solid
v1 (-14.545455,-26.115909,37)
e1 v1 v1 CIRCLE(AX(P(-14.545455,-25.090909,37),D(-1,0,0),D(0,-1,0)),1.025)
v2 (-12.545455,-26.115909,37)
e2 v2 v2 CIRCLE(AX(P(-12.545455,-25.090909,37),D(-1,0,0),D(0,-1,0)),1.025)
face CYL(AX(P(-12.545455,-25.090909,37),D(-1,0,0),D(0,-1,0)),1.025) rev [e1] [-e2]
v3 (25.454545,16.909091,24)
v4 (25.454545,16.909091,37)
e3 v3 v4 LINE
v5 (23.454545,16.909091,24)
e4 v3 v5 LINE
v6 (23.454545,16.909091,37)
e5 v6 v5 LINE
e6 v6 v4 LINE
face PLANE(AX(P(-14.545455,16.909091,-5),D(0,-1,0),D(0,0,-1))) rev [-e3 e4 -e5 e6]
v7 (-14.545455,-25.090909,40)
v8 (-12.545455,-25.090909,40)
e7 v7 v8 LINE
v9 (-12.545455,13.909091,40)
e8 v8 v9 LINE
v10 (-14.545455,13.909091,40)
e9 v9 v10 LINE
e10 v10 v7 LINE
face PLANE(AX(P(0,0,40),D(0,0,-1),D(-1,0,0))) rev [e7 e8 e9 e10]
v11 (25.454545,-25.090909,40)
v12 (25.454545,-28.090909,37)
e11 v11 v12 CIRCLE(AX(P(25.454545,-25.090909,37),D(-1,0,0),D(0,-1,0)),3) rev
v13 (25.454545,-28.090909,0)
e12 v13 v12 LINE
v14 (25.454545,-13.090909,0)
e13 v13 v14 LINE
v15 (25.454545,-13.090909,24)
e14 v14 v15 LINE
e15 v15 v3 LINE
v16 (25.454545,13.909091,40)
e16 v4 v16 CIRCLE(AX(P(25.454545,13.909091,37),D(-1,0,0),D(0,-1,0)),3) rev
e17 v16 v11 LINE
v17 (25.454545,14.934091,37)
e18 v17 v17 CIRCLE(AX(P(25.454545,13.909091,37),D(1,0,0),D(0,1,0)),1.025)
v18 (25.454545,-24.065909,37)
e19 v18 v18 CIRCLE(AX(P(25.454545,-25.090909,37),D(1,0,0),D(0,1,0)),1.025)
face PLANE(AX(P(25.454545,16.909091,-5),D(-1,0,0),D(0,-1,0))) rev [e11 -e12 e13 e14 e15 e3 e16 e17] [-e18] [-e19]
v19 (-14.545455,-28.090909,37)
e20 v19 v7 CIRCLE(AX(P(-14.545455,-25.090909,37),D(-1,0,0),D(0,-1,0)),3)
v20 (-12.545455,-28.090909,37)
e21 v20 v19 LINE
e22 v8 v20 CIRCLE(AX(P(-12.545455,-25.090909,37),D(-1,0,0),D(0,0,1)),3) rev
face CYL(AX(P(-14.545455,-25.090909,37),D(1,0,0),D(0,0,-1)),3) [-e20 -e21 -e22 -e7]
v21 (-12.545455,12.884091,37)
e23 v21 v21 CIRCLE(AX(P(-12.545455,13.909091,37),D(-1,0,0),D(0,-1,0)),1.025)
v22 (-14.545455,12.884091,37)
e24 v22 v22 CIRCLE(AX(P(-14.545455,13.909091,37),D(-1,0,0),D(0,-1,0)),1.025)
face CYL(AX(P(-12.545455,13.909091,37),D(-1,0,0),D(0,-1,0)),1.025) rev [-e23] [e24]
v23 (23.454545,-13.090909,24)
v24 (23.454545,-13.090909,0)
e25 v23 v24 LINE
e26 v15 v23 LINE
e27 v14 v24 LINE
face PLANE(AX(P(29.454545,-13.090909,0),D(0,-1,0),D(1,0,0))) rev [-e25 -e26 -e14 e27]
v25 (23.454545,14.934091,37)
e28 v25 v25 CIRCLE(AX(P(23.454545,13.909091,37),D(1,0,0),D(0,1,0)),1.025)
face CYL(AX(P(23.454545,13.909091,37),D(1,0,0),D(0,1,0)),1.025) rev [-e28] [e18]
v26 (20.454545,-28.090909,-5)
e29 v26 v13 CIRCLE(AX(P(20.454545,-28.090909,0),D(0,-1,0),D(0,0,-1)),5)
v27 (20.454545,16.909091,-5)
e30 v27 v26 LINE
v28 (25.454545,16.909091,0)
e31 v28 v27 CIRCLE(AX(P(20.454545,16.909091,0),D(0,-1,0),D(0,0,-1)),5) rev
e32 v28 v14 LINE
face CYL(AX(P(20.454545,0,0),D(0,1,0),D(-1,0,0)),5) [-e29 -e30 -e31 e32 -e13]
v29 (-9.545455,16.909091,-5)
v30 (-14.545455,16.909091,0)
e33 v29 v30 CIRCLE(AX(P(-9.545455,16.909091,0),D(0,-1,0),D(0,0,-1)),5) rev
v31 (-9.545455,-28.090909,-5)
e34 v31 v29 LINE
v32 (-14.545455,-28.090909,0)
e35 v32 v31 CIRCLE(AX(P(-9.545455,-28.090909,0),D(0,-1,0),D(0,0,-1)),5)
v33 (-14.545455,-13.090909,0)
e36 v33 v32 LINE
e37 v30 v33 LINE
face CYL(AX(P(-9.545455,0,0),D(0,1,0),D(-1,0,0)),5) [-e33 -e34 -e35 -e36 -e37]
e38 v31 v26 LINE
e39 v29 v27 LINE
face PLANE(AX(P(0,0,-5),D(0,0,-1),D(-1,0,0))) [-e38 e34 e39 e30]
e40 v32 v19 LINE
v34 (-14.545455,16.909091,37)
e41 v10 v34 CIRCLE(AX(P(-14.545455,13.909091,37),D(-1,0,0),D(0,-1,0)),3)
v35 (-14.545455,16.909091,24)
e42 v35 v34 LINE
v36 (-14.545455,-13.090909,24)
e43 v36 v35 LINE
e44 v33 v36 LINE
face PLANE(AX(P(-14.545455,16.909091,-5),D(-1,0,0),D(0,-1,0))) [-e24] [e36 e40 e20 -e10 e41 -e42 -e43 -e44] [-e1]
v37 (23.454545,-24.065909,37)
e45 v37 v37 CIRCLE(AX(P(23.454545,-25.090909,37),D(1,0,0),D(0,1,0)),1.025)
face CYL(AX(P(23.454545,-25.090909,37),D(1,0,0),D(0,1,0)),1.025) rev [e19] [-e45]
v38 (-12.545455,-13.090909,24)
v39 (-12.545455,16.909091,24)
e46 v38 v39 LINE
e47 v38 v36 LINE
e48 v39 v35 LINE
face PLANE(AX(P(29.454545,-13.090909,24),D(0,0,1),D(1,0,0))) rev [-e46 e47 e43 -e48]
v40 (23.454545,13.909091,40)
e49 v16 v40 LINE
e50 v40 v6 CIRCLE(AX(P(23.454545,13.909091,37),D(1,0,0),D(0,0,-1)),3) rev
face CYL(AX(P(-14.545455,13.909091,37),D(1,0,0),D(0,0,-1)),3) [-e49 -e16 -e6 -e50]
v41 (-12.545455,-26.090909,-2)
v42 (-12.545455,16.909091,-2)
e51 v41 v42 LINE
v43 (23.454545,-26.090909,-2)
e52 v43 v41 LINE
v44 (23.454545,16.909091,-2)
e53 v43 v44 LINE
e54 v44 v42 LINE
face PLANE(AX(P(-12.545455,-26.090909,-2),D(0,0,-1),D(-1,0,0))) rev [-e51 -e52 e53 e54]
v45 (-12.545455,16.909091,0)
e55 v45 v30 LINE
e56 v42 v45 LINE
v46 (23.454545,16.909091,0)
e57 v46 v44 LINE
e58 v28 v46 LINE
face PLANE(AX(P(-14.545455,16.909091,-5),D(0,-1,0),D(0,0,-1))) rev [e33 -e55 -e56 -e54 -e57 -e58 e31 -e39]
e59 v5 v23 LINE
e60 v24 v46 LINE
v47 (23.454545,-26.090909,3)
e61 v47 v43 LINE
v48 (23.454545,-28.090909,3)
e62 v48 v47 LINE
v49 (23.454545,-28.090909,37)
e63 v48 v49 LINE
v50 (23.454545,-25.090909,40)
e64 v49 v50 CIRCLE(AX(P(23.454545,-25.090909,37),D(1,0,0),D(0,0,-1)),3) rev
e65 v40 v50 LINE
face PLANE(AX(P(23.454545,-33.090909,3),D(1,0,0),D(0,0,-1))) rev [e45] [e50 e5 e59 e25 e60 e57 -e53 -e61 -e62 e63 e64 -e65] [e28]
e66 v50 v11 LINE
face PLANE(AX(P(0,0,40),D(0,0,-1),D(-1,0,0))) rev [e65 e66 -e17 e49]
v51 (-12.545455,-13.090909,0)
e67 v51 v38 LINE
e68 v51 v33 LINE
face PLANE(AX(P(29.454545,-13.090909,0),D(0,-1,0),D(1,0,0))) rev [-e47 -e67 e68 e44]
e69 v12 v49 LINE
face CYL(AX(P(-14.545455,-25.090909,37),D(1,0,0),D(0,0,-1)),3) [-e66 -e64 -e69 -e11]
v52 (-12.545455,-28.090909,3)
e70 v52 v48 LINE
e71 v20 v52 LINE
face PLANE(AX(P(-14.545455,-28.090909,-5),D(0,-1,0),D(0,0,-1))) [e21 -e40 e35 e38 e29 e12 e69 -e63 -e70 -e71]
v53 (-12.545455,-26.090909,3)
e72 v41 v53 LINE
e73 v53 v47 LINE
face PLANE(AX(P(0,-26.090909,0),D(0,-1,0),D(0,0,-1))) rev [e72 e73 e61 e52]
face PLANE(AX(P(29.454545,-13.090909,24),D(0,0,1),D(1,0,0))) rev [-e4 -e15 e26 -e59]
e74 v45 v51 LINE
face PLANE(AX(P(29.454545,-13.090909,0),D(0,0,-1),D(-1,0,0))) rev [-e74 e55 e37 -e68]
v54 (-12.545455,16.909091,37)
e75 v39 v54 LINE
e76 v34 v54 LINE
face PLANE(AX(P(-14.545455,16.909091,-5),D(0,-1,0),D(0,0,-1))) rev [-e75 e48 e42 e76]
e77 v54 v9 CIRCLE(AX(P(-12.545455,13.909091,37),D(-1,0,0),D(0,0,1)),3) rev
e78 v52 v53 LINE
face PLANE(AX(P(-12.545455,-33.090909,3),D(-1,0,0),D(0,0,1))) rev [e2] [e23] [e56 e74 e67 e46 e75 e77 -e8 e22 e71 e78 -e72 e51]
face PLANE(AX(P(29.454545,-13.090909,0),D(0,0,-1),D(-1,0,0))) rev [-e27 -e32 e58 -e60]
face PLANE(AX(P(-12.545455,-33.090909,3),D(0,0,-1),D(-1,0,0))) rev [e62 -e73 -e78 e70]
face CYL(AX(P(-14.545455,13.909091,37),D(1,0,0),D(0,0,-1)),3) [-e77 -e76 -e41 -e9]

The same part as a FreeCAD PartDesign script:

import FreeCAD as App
import Part
import Sketcher
from FreeCAD import Vector
Q = App.Units.Quantity


def edges_at(feature, points):
    """Names of the edges that pass closest to the given points."""
    edges = feature.Shape.Edges
    near = lambda p: min(range(len(edges)), key=lambda i: edges[i].distToShape(Part.Vertex(*p))[0])
    return sorted({f"Edge{near(p) + 1}" for p in points})

doc = App.newDocument("Part")
body = doc.addObject("PartDesign::Body", "Body")

sketch1 = body.newObject("Sketcher::SketchObject", "Sketch")
sketch1.AttachmentSupport = (doc.getObject("XY_Plane"), [""])
sketch1.MapMode = "FlatFace"
sketch1.addGeometry([
    Part.LineSegment(Vector(-15, 17, 0), Vector(-15, -28, 0)),
    Part.LineSegment(Vector(-15, -28, 0), Vector(25, -28, 0)),
    Part.LineSegment(Vector(25, -28, 0), Vector(25, 17, 0)),
    Part.LineSegment(Vector(25, 17, 0), Vector(-15, 17, 0)),
], False)
sketch1.addConstraint([
    Sketcher.Constraint("Coincident", 0, 2, 1, 1),
    Sketcher.Constraint("Coincident", 1, 2, 2, 1),
    Sketcher.Constraint("Coincident", 2, 2, 3, 1),
    Sketcher.Constraint("Coincident", 3, 2, 0, 1),
    Sketcher.Constraint("Vertical", 0),
    Sketcher.Constraint("Horizontal", 1),
    Sketcher.Constraint("Vertical", 2),
    Sketcher.Constraint("Horizontal", 3),
    Sketcher.Constraint("DistanceX", 1, 1, 1, 2, Q("40 mm")),
    Sketcher.Constraint("DistanceY", 0, 2, 0, 1, Q("45 mm")),
    Sketcher.Constraint("DistanceY", 0, 2, -1, 1, Q("28.090909 mm")),
    Sketcher.Constraint("DistanceX", 0, 2, -1, 1, Q("14.545455 mm")),
])
pad1 = body.newObject("PartDesign::Pad", "Pad")
pad1.Profile = sketch1
pad1.Type = "TwoLengths"
pad1.Length = 40
pad1.Length2 = 5

sketch2 = body.newObject("Sketcher::SketchObject", "Sketch001")
sketch2.AttachmentSupport = (doc.getObject("XZ_Plane"), [""])
sketch2.MapMode = "FlatFace"
sketch2.AttachmentOffset = App.Placement(Vector(0, 0, -16.909091), App.Rotation())
sketch2.addGeometry([
    Part.LineSegment(Vector(-13, 3, 0), Vector(-13, 40, 0)),
    Part.LineSegment(Vector(-13, 40, 0), Vector(23, 40, 0)),
    Part.LineSegment(Vector(23, 40, 0), Vector(23, 3, 0)),
    Part.LineSegment(Vector(23, 3, 0), Vector(-13, 3, 0)),
], False)
sketch2.addConstraint([
    Sketcher.Constraint("Coincident", 0, 2, 1, 1),
    Sketcher.Constraint("Coincident", 1, 2, 2, 1),
    Sketcher.Constraint("Coincident", 2, 2, 3, 1),
    Sketcher.Constraint("Coincident", 3, 2, 0, 1),
    Sketcher.Constraint("Vertical", 0),
    Sketcher.Constraint("Horizontal", 1),
    Sketcher.Constraint("Vertical", 2),
    Sketcher.Constraint("Horizontal", 3),
    Sketcher.Constraint("DistanceX", 1, 1, 1, 2, Q("36 mm")),
    Sketcher.Constraint("DistanceY", 0, 1, 0, 2, Q("37 mm")),
    Sketcher.Constraint("DistanceY", -1, 1, 0, 2, Q("40 mm")),
    Sketcher.Constraint("DistanceX", 0, 2, -1, 1, Q("12.545455 mm")),
])
pocket1 = body.newObject("PartDesign::Pocket", "Pocket")
pocket1.Profile = sketch2
pocket1.Length = 50
pocket1.Reversed = True

sketch3 = body.newObject("Sketcher::SketchObject", "Sketch002")
sketch3.AttachmentSupport = (doc.getObject("YZ_Plane"), [""])
sketch3.MapMode = "FlatFace"
sketch3.AttachmentOffset = App.Placement(Vector(0, 0, -14.545455), App.Rotation())
sketch3.addGeometry([
    Part.Circle(Vector(-25.1, 37, 0), Vector(0, 0, 1), 1),
    Part.Circle(Vector(13.9, 37, 0), Vector(0, 0, 1), 1),
], False)
sketch3.addConstraint([
    Sketcher.Constraint("Equal", 0, 1),
    Sketcher.Constraint("Horizontal", 0, 3, 1, 3),
    Sketcher.Constraint("Diameter", 0, Q("2.05 mm")),
    Sketcher.Constraint("DistanceY", -1, 1, 0, 3, Q("37 mm")),
    Sketcher.Constraint("DistanceX", 0, 3, 1, 3, Q("39 mm")),
    Sketcher.Constraint("DistanceX", 0, 3, -1, 1, Q("25.090909 mm")),
])
pocket2 = body.newObject("PartDesign::Pocket", "Pocket001")
pocket2.Profile = sketch3
pocket2.Length = 2
pocket2.Reversed = True

sketch4 = body.newObject("Sketcher::SketchObject", "Sketch003")
sketch4.AttachmentSupport = (doc.getObject("YZ_Plane"), [""])
sketch4.MapMode = "FlatFace"
sketch4.AttachmentOffset = App.Placement(Vector(0, 0, 25.454545), App.Rotation())
sketch4.addGeometry([
    Part.Circle(Vector(13.9, 37, 0), Vector(0, 0, 1), 1),
    Part.Circle(Vector(-25.1, 37, 0), Vector(0, 0, 1), 1),
], False)
sketch4.addConstraint([
    Sketcher.Constraint("Equal", 0, 1),
    Sketcher.Constraint("Horizontal", 0, 3, 1, 3),
    Sketcher.Constraint("Diameter", 0, Q("2.05 mm")),
    Sketcher.Constraint("DistanceY", -1, 1, 0, 3, Q("37 mm")),
    Sketcher.Constraint("DistanceX", 1, 3, 0, 3, Q("39 mm")),
    Sketcher.Constraint("DistanceX", -1, 1, 0, 3, Q("13.909091 mm")),
])
pocket3 = body.newObject("PartDesign::Pocket", "Pocket002")
pocket3.Profile = sketch4
pocket3.Length = 2

sketch5 = body.newObject("Sketcher::SketchObject", "Sketch004")
sketch5.AttachmentSupport = (doc.getObject("XZ_Plane"), [""])
sketch5.MapMode = "FlatFace"
sketch5.AttachmentOffset = App.Placement(Vector(0, 0, -16.909091), App.Rotation())
sketch5.addGeometry([
    Part.LineSegment(Vector(-13, -2, 0), Vector(-13, 3, 0)),
    Part.LineSegment(Vector(-13, 3, 0), Vector(23, 3, 0)),
    Part.LineSegment(Vector(23, 3, 0), Vector(23, -2, 0)),
    Part.LineSegment(Vector(23, -2, 0), Vector(-13, -2, 0)),
], False)
sketch5.addConstraint([
    Sketcher.Constraint("Coincident", 0, 2, 1, 1),
    Sketcher.Constraint("Coincident", 1, 2, 2, 1),
    Sketcher.Constraint("Coincident", 2, 2, 3, 1),
    Sketcher.Constraint("Coincident", 3, 2, 0, 1),
    Sketcher.Constraint("Vertical", 0),
    Sketcher.Constraint("Horizontal", 1),
    Sketcher.Constraint("Vertical", 2),
    Sketcher.Constraint("Horizontal", 3),
    Sketcher.Constraint("DistanceX", 1, 1, 1, 2, Q("36 mm")),
    Sketcher.Constraint("DistanceY", 0, 1, 0, 2, Q("5 mm")),
    Sketcher.Constraint("DistanceY", -1, 1, 0, 2, Q("3 mm")),
    Sketcher.Constraint("DistanceX", 0, 2, -1, 1, Q("12.545455 mm")),
])
pocket4 = body.newObject("PartDesign::Pocket", "Pocket003")
pocket4.Profile = sketch5
pocket4.Length = 43
pocket4.Reversed = True
doc.recompute()

fillet = body.newObject("PartDesign::Fillet", "Fillet")
fillet.Base = (pocket4, edges_at(pocket4, [(-14.545, -5.591, -5)]))
fillet.Radius = 5
doc.recompute()

fillet2 = body.newObject("PartDesign::Fillet", "Fillet001")
fillet2.Base = (fillet, edges_at(fillet, [(25.455, -5.591, -5)]))
fillet2.Radius = 5
doc.recompute()

fillet3 = body.newObject("PartDesign::Fillet", "Fillet002")
fillet3.Base = (fillet2, edges_at(fillet2, [(-13.545, -28.091, 40)]))
fillet3.Radius = 3
doc.recompute()

fillet4 = body.newObject("PartDesign::Fillet", "Fillet003")
fillet4.Base = (fillet3, edges_at(fillet3, [(24.455, -28.091, 40)]))
fillet4.Radius = 3
doc.recompute()

fillet5 = body.newObject("PartDesign::Fillet", "Fillet004")
fillet5.Base = (fillet4, edges_at(fillet4, [(-13.545, 16.909, 40)]))
fillet5.Radius = 3
doc.recompute()

fillet6 = body.newObject("PartDesign::Fillet", "Fillet005")
fillet6.Base = (fillet5, edges_at(fillet5, [(24.455, 16.909, 40)]))
fillet6.Radius = 3

sketch6 = body.newObject("Sketcher::SketchObject", "Sketch005")
sketch6.AttachmentSupport = (doc.getObject("YZ_Plane"), [""])
sketch6.MapMode = "FlatFace"
sketch6.AttachmentOffset = App.Placement(Vector(0, 0, -14.545455), App.Rotation())
sketch6.addGeometry([
    Part.LineSegment(Vector(17, 0, 0), Vector(-13, 0, 0)),
    Part.LineSegment(Vector(-13, 0, 0), Vector(-13, 24, 0)),
    Part.LineSegment(Vector(-13, 24, 0), Vector(17, 24, 0)),
    Part.LineSegment(Vector(17, 24, 0), Vector(17, 0, 0)),
], False)
sketch6.addConstraint([
    Sketcher.Constraint("Coincident", 0, 2, 1, 1),
    Sketcher.Constraint("Coincident", 1, 2, 2, 1),
    Sketcher.Constraint("Coincident", 2, 2, 3, 1),
    Sketcher.Constraint("Coincident", 3, 2, 0, 1),
    Sketcher.Constraint("Horizontal", 0),
    Sketcher.Constraint("Vertical", 1),
    Sketcher.Constraint("Horizontal", 2),
    Sketcher.Constraint("Vertical", 3),
    Sketcher.Constraint("PointOnObject", 0, 2, -1),
    Sketcher.Constraint("DistanceX", 0, 2, 0, 1, Q("30 mm")),
    Sketcher.Constraint("DistanceY", 1, 1, 1, 2, Q("24 mm")),
    Sketcher.Constraint("DistanceX", 0, 2, -1, 1, Q("13.090909 mm")),
])
pocket5 = body.newObject("PartDesign::Pocket", "Pocket004")
pocket5.Profile = sketch6
pocket5.Length = 44
pocket5.Reversed = True

doc.recompute()
